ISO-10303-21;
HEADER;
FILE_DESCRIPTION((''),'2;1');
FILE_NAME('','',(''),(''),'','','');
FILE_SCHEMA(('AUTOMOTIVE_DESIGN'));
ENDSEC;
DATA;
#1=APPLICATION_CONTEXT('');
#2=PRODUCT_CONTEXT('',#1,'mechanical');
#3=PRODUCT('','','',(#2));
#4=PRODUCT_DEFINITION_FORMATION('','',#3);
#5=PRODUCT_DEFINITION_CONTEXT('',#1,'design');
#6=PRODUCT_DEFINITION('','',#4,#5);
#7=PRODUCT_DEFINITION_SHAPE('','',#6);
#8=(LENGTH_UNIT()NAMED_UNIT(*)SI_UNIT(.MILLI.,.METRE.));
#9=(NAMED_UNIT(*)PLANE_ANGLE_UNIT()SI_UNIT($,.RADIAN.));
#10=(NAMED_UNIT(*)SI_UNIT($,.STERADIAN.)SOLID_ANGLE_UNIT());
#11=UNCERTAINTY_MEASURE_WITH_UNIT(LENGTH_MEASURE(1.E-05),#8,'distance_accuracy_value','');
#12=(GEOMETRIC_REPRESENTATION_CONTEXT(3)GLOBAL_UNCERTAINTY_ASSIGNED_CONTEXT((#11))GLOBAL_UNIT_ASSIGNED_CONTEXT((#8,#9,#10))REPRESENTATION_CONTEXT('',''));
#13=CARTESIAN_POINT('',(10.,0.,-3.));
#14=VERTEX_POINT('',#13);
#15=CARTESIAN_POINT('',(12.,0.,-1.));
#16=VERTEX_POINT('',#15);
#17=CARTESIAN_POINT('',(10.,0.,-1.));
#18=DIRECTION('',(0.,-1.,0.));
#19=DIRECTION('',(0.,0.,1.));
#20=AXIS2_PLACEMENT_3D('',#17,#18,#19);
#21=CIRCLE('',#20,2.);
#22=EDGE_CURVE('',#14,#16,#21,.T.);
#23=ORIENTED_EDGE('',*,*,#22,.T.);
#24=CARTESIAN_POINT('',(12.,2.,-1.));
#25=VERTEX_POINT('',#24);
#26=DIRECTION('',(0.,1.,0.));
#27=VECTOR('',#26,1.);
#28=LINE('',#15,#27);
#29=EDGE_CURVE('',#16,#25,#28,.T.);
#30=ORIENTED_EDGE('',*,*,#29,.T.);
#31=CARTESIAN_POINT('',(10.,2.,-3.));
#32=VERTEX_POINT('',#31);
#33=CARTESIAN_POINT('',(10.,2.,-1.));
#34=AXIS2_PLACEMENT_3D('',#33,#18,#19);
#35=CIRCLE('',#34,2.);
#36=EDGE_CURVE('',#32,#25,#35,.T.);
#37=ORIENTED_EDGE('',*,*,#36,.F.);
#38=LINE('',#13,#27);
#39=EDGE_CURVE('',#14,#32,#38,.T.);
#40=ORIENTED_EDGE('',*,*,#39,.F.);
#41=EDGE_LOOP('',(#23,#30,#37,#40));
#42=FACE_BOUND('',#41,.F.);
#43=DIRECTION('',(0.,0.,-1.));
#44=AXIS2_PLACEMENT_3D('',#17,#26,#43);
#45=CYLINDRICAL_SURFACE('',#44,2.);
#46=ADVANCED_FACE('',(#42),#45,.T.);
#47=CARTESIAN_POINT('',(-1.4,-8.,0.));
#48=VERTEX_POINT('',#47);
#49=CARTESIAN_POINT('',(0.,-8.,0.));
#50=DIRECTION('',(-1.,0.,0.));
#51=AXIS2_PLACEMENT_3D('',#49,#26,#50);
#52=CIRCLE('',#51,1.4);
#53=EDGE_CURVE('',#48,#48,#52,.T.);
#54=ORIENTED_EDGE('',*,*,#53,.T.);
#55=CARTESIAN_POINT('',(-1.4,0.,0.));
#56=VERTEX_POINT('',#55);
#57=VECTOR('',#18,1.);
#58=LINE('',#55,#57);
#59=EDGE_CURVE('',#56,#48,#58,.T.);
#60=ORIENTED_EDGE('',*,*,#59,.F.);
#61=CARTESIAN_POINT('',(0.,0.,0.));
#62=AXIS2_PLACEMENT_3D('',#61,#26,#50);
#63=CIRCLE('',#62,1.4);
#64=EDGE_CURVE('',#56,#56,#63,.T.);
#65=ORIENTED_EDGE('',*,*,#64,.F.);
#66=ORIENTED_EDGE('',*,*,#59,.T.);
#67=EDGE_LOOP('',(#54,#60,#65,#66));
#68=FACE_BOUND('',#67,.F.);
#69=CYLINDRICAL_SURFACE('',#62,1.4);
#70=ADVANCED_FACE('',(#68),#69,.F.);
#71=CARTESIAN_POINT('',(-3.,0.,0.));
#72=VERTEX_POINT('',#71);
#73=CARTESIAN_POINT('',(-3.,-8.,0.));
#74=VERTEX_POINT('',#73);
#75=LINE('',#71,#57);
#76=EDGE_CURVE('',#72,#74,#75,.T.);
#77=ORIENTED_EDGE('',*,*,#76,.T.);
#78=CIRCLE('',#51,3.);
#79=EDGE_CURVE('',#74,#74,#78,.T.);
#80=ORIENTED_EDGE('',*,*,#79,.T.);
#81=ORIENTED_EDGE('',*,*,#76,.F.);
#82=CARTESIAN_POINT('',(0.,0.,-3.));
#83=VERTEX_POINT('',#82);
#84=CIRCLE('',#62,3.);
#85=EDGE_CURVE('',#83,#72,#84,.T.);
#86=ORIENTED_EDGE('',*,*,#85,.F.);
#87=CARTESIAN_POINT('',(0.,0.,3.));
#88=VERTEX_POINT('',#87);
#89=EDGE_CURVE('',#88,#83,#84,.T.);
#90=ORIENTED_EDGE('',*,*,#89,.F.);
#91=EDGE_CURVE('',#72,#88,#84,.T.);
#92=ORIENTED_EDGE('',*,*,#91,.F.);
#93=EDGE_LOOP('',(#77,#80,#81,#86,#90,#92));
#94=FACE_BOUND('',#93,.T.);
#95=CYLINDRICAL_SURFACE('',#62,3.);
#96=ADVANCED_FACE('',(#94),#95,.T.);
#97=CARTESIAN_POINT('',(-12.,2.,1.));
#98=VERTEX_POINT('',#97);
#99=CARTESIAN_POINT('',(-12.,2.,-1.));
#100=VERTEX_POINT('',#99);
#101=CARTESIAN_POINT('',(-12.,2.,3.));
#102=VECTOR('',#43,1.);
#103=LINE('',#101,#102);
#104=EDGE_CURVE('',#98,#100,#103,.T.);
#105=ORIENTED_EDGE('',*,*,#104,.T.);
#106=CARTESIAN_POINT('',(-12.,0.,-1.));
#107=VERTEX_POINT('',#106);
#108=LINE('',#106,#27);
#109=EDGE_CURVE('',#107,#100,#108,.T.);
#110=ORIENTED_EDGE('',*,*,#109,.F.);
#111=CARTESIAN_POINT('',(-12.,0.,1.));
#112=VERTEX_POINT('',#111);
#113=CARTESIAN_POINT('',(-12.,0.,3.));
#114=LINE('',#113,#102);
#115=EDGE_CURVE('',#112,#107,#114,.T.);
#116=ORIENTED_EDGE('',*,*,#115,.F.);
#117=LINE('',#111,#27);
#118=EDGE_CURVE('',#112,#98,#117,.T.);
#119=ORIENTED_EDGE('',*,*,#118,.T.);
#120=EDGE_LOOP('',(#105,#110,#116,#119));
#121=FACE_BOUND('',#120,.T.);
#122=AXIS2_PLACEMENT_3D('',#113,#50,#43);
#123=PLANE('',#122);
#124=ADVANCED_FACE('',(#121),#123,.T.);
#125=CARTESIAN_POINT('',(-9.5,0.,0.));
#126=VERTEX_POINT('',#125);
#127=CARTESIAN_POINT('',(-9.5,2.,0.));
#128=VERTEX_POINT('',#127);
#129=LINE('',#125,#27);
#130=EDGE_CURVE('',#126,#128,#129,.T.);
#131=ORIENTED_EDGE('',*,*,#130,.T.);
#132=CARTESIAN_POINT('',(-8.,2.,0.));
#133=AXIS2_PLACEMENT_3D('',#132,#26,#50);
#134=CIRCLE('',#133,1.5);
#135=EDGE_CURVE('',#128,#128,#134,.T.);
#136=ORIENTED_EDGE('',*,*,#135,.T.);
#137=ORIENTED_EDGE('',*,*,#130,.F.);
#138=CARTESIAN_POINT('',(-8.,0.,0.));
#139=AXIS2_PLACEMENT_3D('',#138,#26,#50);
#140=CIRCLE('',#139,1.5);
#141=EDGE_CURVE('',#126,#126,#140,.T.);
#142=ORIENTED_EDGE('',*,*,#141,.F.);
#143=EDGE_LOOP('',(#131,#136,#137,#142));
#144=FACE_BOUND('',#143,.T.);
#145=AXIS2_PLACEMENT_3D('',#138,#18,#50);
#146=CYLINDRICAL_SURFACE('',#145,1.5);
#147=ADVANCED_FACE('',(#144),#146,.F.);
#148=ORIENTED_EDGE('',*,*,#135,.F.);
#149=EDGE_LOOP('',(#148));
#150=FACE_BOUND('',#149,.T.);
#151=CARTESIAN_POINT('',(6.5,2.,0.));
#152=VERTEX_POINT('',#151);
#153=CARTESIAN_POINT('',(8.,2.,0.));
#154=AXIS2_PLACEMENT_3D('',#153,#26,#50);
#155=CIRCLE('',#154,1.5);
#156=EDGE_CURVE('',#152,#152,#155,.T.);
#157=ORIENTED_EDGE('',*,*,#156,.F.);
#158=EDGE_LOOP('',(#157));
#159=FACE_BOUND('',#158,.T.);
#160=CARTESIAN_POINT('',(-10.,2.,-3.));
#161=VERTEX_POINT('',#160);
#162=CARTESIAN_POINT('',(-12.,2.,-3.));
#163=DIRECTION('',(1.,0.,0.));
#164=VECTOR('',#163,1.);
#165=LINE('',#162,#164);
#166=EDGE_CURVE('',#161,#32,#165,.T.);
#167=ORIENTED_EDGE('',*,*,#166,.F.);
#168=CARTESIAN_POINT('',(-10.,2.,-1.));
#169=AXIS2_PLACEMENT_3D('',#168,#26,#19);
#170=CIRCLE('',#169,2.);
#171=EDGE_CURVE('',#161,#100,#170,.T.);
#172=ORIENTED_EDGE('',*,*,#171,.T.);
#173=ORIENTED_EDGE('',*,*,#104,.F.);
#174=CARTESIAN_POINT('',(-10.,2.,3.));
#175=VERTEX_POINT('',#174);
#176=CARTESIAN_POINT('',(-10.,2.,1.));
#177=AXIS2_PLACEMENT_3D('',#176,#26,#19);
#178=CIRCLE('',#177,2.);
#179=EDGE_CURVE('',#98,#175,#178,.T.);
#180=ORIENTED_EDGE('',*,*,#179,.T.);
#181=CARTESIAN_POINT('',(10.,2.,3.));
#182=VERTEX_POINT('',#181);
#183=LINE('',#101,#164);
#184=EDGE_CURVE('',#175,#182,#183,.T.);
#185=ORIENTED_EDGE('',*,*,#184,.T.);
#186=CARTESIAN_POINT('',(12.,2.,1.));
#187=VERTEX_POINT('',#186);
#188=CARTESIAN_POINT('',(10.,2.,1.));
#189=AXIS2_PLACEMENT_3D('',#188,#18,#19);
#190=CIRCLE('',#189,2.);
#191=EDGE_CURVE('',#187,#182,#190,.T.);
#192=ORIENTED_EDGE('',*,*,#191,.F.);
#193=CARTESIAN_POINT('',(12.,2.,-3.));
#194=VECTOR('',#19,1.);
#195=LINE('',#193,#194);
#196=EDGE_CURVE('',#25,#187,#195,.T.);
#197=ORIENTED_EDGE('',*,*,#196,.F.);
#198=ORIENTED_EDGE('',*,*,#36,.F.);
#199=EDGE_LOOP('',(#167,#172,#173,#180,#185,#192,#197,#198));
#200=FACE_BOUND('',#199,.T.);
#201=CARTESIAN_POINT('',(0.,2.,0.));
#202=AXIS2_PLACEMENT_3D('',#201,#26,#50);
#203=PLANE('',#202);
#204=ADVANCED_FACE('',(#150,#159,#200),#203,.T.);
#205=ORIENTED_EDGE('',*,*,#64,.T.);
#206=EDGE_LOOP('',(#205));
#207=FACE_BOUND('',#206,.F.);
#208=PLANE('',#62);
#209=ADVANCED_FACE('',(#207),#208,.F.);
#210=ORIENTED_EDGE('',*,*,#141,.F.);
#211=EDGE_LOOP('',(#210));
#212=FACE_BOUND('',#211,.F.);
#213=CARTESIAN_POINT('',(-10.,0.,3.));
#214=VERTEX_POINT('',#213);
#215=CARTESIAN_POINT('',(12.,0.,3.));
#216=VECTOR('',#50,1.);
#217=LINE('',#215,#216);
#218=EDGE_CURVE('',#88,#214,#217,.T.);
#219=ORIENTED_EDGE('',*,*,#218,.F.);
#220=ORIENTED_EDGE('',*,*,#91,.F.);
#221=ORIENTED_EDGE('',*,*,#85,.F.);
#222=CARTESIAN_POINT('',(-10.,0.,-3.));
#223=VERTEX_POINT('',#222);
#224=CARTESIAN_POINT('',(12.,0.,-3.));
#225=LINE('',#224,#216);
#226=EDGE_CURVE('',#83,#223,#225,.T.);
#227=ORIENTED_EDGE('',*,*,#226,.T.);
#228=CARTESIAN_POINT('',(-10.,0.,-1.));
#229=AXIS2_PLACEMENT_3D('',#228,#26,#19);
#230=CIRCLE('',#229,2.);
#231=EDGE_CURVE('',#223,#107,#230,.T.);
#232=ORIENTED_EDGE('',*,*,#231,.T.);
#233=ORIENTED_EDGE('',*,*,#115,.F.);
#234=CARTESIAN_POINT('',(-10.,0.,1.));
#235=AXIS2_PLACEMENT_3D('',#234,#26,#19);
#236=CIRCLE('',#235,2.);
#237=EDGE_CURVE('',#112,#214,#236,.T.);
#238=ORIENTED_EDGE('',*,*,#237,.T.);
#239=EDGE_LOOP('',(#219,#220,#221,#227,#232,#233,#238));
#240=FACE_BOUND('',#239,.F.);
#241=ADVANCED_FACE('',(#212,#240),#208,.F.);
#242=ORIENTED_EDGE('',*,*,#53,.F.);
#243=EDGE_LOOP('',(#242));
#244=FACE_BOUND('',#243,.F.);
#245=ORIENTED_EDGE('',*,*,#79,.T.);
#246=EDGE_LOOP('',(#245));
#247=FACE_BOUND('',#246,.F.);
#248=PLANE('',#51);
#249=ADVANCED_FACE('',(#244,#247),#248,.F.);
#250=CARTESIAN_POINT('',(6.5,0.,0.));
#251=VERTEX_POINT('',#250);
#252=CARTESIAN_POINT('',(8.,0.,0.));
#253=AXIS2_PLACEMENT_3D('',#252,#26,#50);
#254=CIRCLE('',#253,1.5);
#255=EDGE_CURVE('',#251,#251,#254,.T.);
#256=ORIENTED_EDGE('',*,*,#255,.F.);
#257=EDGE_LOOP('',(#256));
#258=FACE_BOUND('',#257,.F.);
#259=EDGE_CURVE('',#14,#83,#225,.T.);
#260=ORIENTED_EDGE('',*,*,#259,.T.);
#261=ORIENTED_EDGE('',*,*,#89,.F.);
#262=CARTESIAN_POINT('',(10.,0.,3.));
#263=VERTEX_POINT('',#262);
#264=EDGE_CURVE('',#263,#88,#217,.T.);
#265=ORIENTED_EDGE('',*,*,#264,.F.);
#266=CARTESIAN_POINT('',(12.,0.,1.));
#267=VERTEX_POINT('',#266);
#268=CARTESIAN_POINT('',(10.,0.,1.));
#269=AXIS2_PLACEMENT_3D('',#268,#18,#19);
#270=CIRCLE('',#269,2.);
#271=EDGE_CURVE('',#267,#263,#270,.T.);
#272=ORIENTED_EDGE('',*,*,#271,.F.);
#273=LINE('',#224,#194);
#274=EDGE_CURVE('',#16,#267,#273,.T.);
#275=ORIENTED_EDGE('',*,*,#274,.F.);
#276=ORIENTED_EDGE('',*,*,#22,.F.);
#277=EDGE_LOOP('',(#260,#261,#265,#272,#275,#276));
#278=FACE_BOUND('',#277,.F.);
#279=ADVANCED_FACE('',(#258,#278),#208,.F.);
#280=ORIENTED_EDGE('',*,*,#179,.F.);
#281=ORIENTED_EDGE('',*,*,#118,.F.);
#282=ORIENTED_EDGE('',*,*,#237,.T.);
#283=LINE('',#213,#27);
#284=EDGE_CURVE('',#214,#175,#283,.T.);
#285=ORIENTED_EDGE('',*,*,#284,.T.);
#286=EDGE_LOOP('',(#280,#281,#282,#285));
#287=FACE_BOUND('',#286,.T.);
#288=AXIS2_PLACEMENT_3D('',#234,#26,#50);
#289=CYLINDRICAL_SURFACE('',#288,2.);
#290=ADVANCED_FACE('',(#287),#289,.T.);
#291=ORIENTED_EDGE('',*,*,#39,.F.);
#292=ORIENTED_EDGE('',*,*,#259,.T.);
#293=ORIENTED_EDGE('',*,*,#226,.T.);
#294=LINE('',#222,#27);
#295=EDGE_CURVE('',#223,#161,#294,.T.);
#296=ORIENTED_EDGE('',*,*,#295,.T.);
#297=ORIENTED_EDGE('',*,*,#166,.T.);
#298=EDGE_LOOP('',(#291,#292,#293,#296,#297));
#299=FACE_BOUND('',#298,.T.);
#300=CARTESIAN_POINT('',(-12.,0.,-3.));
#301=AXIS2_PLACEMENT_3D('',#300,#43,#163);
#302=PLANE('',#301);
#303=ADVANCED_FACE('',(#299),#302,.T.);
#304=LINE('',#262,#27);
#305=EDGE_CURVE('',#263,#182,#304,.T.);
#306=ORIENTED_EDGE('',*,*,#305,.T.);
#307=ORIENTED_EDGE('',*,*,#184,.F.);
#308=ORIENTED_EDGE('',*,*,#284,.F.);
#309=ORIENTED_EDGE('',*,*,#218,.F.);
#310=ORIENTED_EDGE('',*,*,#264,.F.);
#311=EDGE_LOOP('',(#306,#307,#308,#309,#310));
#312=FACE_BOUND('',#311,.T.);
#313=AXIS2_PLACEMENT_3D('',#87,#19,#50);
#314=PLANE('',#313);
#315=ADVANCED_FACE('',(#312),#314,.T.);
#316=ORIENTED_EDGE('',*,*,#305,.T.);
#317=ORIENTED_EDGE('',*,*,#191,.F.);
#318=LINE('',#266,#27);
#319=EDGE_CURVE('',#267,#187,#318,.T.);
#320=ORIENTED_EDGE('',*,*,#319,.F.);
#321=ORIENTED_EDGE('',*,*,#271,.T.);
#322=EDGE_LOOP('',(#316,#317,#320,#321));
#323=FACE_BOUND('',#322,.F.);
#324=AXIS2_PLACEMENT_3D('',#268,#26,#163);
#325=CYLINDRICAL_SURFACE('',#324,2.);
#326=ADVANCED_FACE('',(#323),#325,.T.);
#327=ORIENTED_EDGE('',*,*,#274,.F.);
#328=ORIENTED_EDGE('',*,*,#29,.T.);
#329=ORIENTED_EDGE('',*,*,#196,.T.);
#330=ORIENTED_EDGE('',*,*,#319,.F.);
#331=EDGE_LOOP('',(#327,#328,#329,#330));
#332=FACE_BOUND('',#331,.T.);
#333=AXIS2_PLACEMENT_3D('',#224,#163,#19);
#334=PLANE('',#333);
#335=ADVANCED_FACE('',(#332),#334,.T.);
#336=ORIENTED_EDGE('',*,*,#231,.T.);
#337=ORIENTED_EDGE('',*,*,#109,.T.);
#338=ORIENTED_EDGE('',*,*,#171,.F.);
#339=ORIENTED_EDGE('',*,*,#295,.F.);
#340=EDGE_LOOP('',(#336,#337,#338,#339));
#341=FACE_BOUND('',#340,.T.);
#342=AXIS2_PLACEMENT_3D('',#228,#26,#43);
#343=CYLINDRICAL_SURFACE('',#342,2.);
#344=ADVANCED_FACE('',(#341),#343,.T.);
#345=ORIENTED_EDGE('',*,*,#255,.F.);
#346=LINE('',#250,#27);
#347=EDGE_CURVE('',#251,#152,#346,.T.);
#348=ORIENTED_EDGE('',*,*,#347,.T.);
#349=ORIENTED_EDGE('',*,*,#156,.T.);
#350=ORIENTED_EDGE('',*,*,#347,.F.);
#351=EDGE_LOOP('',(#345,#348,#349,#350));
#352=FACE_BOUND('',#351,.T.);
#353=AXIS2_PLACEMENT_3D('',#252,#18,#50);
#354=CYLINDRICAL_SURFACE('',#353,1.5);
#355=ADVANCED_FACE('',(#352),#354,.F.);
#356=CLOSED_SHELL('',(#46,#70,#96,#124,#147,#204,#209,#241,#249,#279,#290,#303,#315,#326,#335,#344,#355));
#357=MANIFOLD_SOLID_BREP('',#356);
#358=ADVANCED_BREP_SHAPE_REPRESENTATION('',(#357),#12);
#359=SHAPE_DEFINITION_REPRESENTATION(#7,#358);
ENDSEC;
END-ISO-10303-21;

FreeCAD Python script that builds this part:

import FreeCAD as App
import Part
import Sketcher


def edges_at(feature, points):
    """Names of the edges that pass closest to the given points."""
    edges = feature.Shape.Edges
    near = lambda p: min(range(len(edges)), key=lambda i: edges[i].distToShape(Part.Vertex(*p))[0])
    return sorted({f"Edge{near(p) + 1}" for p in points})

doc = App.newDocument("Part")
params = doc.addObject("Spreadsheet::Sheet", "Params")
for row, (alias, value) in enumerate([
    ("sketch1_diameter", "3 mm"),
    ("sketch1_width", "24 mm"),
    ("sketch1_height", "6 mm"),
    ("pad1_length", "2 mm"),
    ("sketch2_diameter", "6 mm"),
    ("sketch2_diameter2", "2.8 mm"),
    ("pad2_length", "8 mm"),
    ("fillet_radius", "2 mm"),
], start=1):
    params.set(f"A{row}", alias)
    params.set(f"B{row}", "=" + value)
    params.setAlias(f"B{row}", alias)

body = doc.addObject("PartDesign::Body", "Body")

# Sketch on XZ plane
sketch1 = body.newObject("Sketcher::SketchObject", "Sketch")
sketch1.AttachmentSupport = (doc.getObject("XZ_Plane"), [""])
sketch1.MapMode = "FlatFace"
sketch1.addGeometry([
    Part.LineSegment(App.Vector(-12, -3, 0), App.Vector(-12, 3, 0)),  # 0
    Part.LineSegment(App.Vector(-12, 3, 0), App.Vector(12, 3, 0)),  # 1
    Part.LineSegment(App.Vector(12, 3, 0), App.Vector(12, -3, 0)),  # 2
    Part.LineSegment(App.Vector(12, -3, 0), App.Vector(-12, -3, 0)),  # 3
    Part.Circle(App.Vector(-8, 0, 0), App.Vector(0, 0, 1), 1.5),  # 4
    Part.Circle(App.Vector(8, 0, 0), App.Vector(0, 0, 1), 1.5),  # 5
], False)
sketch1.addConstraint([
    Sketcher.Constraint("Coincident", 0, 2, 1, 1),
    Sketcher.Constraint("Coincident", 1, 2, 2, 1),
    Sketcher.Constraint("Coincident", 2, 2, 3, 1),
    Sketcher.Constraint("Coincident", 3, 2, 0, 1),
    Sketcher.Constraint("Vertical", 0),
    Sketcher.Constraint("Horizontal", 1),
    Sketcher.Constraint("Vertical", 2),
    Sketcher.Constraint("Horizontal", 3),
    Sketcher.Constraint("Equal", 4, 5),
    Sketcher.Constraint("Symmetric", 4, 3, 5, 3, -1, 1),
    Sketcher.Constraint("Symmetric", 0, 2, 2, 2, -1, 1),
    Sketcher.Constraint("PointOnObject", 4, 3, -1),
    Sketcher.Constraint("Diameter", 4, 3.0),
    Sketcher.Constraint("DistanceX", 1, 1, 1, 2, 24.0),
    Sketcher.Constraint("DistanceY", 0, 1, 0, 2, 6.0),
    Sketcher.Constraint("DistanceX", 4, 3, -1, 1, 8.0),
])
sketch1.setExpression("Constraints[12]", "Params.sketch1_diameter")
sketch1.setExpression("Constraints[13]", "Params.sketch1_width")
sketch1.setExpression("Constraints[14]", "Params.sketch1_height")
pad1 = body.newObject("PartDesign::Pad", "Pad")
pad1.Profile = sketch1
pad1.setExpression("Length", "Params.pad1_length")
pad1.Reversed = True

# Sketch on XZ plane
sketch2 = body.newObject("Sketcher::SketchObject", "Sketch001")
sketch2.AttachmentSupport = (doc.getObject("XZ_Plane"), [""])
sketch2.MapMode = "FlatFace"
sketch2.addGeometry([
    Part.Circle(App.Vector(0, 0, 0), App.Vector(0, 0, 1), 3),
    Part.Circle(App.Vector(0, 0, 0), App.Vector(0, 0, 1), 1.4),
], False)
sketch2.addConstraint([
    Sketcher.Constraint("Coincident", 0, 3, -1, 1),
    Sketcher.Constraint("Coincident", 1, 3, -1, 1),
    Sketcher.Constraint("Diameter", 0, 6.0),
    Sketcher.Constraint("Diameter", 1, 2.8),
])
sketch2.setExpression("Constraints[2]", "Params.sketch2_diameter")
sketch2.setExpression("Constraints[3]", "Params.sketch2_diameter2")
pad2 = body.newObject("PartDesign::Pad", "Pad001")
pad2.Profile = sketch2
pad2.setExpression("Length", "Params.pad2_length")
doc.recompute()

fillet = body.newObject("PartDesign::Fillet", "Fillet")
fillet.Base = (pad2, edges_at(pad2, [
    (-12, 1, 3),
    (-12, 1, -3),
    (12, 1, 3),
    (12, 1, -3),
]))
fillet.setExpression("Radius", "Params.fillet_radius")

doc.recompute()
